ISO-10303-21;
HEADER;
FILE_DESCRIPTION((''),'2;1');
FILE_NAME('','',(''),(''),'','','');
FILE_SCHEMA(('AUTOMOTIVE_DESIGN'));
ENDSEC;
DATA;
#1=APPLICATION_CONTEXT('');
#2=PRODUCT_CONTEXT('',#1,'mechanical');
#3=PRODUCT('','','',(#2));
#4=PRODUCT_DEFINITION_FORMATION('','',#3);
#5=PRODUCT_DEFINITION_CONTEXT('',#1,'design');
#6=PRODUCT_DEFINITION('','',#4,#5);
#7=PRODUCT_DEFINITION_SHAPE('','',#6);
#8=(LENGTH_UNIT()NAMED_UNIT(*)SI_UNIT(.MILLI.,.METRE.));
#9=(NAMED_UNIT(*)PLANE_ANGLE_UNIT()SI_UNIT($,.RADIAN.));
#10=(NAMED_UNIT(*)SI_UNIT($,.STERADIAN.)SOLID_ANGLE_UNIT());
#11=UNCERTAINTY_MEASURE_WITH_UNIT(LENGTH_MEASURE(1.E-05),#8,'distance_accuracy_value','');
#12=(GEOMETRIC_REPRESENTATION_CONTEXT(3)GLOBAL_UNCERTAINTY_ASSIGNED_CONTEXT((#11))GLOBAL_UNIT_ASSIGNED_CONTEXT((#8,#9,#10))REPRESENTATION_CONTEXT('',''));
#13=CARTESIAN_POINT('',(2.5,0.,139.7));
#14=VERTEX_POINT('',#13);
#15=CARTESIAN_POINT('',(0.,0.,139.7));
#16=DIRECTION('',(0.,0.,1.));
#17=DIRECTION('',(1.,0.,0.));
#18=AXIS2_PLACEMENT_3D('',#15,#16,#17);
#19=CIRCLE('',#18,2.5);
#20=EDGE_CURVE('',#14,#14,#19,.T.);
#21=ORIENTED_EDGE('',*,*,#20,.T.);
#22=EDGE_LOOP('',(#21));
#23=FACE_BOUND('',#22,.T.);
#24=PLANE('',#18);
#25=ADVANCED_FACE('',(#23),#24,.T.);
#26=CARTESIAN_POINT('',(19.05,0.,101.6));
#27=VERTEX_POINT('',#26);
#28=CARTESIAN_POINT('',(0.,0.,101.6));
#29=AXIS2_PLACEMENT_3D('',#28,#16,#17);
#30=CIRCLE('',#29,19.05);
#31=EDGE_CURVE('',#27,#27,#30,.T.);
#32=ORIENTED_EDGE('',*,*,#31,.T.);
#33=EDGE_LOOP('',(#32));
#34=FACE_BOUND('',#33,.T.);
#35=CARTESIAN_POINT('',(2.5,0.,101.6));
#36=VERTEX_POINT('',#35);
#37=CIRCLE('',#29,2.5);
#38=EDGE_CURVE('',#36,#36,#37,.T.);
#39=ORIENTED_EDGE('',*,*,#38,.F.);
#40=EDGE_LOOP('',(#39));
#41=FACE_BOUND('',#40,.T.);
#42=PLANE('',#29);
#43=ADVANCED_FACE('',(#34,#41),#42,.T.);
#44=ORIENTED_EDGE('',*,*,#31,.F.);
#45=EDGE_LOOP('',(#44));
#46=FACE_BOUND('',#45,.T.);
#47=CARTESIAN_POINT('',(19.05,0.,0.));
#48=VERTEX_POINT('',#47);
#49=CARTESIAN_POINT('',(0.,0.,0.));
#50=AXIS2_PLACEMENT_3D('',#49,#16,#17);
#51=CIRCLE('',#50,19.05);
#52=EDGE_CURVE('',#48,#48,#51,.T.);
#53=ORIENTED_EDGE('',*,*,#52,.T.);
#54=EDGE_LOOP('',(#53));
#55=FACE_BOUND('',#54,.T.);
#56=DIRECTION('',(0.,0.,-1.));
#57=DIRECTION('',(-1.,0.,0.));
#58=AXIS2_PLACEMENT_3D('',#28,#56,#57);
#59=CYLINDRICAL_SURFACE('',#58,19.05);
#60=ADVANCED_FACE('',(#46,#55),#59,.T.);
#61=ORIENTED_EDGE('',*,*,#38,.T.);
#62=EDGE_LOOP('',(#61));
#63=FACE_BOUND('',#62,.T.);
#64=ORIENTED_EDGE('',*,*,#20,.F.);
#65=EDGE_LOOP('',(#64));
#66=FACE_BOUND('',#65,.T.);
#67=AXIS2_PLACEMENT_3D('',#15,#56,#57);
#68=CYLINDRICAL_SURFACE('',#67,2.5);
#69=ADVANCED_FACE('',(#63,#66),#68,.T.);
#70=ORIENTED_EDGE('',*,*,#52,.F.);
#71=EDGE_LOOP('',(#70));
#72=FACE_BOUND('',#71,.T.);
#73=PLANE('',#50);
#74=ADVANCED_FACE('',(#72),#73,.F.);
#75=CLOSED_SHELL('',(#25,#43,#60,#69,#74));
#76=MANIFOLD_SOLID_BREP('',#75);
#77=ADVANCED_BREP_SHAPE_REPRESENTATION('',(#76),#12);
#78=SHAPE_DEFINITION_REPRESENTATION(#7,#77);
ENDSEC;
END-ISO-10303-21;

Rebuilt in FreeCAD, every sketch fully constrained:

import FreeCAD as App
import Part
import Sketcher

V = App.Vector
Q = App.Units.Quantity

doc = App.newDocument("Part")
body = doc.addObject("PartDesign::Body", "Body")

sketch1 = body.newObject("Sketcher::SketchObject", "Sketch")
sketch1.AttachmentSupport = (doc.getObject("XY_Plane"), [""])
sketch1.MapMode = "FlatFace"
sketch1.addGeometry(Part.Circle(V(0, 0, 0), V(0, 0, 1), 19.05), False)
sketch1.addConstraint([
    Sketcher.Constraint("Coincident", 0, 3, -1, 1),
    Sketcher.Constraint("Diameter", 0, Q("1.5 in")),
])
pad1 = body.newObject("PartDesign::Pad", "Pad")
pad1.Profile = sketch1
pad1.Length = Q("4 in")

sketch2 = body.newObject("Sketcher::SketchObject", "Sketch001")
sketch2.AttachmentSupport = (doc.getObject("XY_Plane"), [""])
sketch2.MapMode = "FlatFace"
sketch2.AttachmentOffset = App.Placement(V(0, 0, 4 * 25.4), App.Rotation())
sketch2.addGeometry(Part.Circle(V(0, 0, 0), V(0, 0, 1), 2.5), False)
sketch2.addConstraint([
    Sketcher.Constraint("Coincident", 0, 3, -1, 1),
    Sketcher.Constraint("Diameter", 0, 5.0),
])
pad2 = body.newObject("PartDesign::Pad", "Pad001")
pad2.Profile = sketch2
pad2.Length = Q("1.5 in")

doc.recompute()
